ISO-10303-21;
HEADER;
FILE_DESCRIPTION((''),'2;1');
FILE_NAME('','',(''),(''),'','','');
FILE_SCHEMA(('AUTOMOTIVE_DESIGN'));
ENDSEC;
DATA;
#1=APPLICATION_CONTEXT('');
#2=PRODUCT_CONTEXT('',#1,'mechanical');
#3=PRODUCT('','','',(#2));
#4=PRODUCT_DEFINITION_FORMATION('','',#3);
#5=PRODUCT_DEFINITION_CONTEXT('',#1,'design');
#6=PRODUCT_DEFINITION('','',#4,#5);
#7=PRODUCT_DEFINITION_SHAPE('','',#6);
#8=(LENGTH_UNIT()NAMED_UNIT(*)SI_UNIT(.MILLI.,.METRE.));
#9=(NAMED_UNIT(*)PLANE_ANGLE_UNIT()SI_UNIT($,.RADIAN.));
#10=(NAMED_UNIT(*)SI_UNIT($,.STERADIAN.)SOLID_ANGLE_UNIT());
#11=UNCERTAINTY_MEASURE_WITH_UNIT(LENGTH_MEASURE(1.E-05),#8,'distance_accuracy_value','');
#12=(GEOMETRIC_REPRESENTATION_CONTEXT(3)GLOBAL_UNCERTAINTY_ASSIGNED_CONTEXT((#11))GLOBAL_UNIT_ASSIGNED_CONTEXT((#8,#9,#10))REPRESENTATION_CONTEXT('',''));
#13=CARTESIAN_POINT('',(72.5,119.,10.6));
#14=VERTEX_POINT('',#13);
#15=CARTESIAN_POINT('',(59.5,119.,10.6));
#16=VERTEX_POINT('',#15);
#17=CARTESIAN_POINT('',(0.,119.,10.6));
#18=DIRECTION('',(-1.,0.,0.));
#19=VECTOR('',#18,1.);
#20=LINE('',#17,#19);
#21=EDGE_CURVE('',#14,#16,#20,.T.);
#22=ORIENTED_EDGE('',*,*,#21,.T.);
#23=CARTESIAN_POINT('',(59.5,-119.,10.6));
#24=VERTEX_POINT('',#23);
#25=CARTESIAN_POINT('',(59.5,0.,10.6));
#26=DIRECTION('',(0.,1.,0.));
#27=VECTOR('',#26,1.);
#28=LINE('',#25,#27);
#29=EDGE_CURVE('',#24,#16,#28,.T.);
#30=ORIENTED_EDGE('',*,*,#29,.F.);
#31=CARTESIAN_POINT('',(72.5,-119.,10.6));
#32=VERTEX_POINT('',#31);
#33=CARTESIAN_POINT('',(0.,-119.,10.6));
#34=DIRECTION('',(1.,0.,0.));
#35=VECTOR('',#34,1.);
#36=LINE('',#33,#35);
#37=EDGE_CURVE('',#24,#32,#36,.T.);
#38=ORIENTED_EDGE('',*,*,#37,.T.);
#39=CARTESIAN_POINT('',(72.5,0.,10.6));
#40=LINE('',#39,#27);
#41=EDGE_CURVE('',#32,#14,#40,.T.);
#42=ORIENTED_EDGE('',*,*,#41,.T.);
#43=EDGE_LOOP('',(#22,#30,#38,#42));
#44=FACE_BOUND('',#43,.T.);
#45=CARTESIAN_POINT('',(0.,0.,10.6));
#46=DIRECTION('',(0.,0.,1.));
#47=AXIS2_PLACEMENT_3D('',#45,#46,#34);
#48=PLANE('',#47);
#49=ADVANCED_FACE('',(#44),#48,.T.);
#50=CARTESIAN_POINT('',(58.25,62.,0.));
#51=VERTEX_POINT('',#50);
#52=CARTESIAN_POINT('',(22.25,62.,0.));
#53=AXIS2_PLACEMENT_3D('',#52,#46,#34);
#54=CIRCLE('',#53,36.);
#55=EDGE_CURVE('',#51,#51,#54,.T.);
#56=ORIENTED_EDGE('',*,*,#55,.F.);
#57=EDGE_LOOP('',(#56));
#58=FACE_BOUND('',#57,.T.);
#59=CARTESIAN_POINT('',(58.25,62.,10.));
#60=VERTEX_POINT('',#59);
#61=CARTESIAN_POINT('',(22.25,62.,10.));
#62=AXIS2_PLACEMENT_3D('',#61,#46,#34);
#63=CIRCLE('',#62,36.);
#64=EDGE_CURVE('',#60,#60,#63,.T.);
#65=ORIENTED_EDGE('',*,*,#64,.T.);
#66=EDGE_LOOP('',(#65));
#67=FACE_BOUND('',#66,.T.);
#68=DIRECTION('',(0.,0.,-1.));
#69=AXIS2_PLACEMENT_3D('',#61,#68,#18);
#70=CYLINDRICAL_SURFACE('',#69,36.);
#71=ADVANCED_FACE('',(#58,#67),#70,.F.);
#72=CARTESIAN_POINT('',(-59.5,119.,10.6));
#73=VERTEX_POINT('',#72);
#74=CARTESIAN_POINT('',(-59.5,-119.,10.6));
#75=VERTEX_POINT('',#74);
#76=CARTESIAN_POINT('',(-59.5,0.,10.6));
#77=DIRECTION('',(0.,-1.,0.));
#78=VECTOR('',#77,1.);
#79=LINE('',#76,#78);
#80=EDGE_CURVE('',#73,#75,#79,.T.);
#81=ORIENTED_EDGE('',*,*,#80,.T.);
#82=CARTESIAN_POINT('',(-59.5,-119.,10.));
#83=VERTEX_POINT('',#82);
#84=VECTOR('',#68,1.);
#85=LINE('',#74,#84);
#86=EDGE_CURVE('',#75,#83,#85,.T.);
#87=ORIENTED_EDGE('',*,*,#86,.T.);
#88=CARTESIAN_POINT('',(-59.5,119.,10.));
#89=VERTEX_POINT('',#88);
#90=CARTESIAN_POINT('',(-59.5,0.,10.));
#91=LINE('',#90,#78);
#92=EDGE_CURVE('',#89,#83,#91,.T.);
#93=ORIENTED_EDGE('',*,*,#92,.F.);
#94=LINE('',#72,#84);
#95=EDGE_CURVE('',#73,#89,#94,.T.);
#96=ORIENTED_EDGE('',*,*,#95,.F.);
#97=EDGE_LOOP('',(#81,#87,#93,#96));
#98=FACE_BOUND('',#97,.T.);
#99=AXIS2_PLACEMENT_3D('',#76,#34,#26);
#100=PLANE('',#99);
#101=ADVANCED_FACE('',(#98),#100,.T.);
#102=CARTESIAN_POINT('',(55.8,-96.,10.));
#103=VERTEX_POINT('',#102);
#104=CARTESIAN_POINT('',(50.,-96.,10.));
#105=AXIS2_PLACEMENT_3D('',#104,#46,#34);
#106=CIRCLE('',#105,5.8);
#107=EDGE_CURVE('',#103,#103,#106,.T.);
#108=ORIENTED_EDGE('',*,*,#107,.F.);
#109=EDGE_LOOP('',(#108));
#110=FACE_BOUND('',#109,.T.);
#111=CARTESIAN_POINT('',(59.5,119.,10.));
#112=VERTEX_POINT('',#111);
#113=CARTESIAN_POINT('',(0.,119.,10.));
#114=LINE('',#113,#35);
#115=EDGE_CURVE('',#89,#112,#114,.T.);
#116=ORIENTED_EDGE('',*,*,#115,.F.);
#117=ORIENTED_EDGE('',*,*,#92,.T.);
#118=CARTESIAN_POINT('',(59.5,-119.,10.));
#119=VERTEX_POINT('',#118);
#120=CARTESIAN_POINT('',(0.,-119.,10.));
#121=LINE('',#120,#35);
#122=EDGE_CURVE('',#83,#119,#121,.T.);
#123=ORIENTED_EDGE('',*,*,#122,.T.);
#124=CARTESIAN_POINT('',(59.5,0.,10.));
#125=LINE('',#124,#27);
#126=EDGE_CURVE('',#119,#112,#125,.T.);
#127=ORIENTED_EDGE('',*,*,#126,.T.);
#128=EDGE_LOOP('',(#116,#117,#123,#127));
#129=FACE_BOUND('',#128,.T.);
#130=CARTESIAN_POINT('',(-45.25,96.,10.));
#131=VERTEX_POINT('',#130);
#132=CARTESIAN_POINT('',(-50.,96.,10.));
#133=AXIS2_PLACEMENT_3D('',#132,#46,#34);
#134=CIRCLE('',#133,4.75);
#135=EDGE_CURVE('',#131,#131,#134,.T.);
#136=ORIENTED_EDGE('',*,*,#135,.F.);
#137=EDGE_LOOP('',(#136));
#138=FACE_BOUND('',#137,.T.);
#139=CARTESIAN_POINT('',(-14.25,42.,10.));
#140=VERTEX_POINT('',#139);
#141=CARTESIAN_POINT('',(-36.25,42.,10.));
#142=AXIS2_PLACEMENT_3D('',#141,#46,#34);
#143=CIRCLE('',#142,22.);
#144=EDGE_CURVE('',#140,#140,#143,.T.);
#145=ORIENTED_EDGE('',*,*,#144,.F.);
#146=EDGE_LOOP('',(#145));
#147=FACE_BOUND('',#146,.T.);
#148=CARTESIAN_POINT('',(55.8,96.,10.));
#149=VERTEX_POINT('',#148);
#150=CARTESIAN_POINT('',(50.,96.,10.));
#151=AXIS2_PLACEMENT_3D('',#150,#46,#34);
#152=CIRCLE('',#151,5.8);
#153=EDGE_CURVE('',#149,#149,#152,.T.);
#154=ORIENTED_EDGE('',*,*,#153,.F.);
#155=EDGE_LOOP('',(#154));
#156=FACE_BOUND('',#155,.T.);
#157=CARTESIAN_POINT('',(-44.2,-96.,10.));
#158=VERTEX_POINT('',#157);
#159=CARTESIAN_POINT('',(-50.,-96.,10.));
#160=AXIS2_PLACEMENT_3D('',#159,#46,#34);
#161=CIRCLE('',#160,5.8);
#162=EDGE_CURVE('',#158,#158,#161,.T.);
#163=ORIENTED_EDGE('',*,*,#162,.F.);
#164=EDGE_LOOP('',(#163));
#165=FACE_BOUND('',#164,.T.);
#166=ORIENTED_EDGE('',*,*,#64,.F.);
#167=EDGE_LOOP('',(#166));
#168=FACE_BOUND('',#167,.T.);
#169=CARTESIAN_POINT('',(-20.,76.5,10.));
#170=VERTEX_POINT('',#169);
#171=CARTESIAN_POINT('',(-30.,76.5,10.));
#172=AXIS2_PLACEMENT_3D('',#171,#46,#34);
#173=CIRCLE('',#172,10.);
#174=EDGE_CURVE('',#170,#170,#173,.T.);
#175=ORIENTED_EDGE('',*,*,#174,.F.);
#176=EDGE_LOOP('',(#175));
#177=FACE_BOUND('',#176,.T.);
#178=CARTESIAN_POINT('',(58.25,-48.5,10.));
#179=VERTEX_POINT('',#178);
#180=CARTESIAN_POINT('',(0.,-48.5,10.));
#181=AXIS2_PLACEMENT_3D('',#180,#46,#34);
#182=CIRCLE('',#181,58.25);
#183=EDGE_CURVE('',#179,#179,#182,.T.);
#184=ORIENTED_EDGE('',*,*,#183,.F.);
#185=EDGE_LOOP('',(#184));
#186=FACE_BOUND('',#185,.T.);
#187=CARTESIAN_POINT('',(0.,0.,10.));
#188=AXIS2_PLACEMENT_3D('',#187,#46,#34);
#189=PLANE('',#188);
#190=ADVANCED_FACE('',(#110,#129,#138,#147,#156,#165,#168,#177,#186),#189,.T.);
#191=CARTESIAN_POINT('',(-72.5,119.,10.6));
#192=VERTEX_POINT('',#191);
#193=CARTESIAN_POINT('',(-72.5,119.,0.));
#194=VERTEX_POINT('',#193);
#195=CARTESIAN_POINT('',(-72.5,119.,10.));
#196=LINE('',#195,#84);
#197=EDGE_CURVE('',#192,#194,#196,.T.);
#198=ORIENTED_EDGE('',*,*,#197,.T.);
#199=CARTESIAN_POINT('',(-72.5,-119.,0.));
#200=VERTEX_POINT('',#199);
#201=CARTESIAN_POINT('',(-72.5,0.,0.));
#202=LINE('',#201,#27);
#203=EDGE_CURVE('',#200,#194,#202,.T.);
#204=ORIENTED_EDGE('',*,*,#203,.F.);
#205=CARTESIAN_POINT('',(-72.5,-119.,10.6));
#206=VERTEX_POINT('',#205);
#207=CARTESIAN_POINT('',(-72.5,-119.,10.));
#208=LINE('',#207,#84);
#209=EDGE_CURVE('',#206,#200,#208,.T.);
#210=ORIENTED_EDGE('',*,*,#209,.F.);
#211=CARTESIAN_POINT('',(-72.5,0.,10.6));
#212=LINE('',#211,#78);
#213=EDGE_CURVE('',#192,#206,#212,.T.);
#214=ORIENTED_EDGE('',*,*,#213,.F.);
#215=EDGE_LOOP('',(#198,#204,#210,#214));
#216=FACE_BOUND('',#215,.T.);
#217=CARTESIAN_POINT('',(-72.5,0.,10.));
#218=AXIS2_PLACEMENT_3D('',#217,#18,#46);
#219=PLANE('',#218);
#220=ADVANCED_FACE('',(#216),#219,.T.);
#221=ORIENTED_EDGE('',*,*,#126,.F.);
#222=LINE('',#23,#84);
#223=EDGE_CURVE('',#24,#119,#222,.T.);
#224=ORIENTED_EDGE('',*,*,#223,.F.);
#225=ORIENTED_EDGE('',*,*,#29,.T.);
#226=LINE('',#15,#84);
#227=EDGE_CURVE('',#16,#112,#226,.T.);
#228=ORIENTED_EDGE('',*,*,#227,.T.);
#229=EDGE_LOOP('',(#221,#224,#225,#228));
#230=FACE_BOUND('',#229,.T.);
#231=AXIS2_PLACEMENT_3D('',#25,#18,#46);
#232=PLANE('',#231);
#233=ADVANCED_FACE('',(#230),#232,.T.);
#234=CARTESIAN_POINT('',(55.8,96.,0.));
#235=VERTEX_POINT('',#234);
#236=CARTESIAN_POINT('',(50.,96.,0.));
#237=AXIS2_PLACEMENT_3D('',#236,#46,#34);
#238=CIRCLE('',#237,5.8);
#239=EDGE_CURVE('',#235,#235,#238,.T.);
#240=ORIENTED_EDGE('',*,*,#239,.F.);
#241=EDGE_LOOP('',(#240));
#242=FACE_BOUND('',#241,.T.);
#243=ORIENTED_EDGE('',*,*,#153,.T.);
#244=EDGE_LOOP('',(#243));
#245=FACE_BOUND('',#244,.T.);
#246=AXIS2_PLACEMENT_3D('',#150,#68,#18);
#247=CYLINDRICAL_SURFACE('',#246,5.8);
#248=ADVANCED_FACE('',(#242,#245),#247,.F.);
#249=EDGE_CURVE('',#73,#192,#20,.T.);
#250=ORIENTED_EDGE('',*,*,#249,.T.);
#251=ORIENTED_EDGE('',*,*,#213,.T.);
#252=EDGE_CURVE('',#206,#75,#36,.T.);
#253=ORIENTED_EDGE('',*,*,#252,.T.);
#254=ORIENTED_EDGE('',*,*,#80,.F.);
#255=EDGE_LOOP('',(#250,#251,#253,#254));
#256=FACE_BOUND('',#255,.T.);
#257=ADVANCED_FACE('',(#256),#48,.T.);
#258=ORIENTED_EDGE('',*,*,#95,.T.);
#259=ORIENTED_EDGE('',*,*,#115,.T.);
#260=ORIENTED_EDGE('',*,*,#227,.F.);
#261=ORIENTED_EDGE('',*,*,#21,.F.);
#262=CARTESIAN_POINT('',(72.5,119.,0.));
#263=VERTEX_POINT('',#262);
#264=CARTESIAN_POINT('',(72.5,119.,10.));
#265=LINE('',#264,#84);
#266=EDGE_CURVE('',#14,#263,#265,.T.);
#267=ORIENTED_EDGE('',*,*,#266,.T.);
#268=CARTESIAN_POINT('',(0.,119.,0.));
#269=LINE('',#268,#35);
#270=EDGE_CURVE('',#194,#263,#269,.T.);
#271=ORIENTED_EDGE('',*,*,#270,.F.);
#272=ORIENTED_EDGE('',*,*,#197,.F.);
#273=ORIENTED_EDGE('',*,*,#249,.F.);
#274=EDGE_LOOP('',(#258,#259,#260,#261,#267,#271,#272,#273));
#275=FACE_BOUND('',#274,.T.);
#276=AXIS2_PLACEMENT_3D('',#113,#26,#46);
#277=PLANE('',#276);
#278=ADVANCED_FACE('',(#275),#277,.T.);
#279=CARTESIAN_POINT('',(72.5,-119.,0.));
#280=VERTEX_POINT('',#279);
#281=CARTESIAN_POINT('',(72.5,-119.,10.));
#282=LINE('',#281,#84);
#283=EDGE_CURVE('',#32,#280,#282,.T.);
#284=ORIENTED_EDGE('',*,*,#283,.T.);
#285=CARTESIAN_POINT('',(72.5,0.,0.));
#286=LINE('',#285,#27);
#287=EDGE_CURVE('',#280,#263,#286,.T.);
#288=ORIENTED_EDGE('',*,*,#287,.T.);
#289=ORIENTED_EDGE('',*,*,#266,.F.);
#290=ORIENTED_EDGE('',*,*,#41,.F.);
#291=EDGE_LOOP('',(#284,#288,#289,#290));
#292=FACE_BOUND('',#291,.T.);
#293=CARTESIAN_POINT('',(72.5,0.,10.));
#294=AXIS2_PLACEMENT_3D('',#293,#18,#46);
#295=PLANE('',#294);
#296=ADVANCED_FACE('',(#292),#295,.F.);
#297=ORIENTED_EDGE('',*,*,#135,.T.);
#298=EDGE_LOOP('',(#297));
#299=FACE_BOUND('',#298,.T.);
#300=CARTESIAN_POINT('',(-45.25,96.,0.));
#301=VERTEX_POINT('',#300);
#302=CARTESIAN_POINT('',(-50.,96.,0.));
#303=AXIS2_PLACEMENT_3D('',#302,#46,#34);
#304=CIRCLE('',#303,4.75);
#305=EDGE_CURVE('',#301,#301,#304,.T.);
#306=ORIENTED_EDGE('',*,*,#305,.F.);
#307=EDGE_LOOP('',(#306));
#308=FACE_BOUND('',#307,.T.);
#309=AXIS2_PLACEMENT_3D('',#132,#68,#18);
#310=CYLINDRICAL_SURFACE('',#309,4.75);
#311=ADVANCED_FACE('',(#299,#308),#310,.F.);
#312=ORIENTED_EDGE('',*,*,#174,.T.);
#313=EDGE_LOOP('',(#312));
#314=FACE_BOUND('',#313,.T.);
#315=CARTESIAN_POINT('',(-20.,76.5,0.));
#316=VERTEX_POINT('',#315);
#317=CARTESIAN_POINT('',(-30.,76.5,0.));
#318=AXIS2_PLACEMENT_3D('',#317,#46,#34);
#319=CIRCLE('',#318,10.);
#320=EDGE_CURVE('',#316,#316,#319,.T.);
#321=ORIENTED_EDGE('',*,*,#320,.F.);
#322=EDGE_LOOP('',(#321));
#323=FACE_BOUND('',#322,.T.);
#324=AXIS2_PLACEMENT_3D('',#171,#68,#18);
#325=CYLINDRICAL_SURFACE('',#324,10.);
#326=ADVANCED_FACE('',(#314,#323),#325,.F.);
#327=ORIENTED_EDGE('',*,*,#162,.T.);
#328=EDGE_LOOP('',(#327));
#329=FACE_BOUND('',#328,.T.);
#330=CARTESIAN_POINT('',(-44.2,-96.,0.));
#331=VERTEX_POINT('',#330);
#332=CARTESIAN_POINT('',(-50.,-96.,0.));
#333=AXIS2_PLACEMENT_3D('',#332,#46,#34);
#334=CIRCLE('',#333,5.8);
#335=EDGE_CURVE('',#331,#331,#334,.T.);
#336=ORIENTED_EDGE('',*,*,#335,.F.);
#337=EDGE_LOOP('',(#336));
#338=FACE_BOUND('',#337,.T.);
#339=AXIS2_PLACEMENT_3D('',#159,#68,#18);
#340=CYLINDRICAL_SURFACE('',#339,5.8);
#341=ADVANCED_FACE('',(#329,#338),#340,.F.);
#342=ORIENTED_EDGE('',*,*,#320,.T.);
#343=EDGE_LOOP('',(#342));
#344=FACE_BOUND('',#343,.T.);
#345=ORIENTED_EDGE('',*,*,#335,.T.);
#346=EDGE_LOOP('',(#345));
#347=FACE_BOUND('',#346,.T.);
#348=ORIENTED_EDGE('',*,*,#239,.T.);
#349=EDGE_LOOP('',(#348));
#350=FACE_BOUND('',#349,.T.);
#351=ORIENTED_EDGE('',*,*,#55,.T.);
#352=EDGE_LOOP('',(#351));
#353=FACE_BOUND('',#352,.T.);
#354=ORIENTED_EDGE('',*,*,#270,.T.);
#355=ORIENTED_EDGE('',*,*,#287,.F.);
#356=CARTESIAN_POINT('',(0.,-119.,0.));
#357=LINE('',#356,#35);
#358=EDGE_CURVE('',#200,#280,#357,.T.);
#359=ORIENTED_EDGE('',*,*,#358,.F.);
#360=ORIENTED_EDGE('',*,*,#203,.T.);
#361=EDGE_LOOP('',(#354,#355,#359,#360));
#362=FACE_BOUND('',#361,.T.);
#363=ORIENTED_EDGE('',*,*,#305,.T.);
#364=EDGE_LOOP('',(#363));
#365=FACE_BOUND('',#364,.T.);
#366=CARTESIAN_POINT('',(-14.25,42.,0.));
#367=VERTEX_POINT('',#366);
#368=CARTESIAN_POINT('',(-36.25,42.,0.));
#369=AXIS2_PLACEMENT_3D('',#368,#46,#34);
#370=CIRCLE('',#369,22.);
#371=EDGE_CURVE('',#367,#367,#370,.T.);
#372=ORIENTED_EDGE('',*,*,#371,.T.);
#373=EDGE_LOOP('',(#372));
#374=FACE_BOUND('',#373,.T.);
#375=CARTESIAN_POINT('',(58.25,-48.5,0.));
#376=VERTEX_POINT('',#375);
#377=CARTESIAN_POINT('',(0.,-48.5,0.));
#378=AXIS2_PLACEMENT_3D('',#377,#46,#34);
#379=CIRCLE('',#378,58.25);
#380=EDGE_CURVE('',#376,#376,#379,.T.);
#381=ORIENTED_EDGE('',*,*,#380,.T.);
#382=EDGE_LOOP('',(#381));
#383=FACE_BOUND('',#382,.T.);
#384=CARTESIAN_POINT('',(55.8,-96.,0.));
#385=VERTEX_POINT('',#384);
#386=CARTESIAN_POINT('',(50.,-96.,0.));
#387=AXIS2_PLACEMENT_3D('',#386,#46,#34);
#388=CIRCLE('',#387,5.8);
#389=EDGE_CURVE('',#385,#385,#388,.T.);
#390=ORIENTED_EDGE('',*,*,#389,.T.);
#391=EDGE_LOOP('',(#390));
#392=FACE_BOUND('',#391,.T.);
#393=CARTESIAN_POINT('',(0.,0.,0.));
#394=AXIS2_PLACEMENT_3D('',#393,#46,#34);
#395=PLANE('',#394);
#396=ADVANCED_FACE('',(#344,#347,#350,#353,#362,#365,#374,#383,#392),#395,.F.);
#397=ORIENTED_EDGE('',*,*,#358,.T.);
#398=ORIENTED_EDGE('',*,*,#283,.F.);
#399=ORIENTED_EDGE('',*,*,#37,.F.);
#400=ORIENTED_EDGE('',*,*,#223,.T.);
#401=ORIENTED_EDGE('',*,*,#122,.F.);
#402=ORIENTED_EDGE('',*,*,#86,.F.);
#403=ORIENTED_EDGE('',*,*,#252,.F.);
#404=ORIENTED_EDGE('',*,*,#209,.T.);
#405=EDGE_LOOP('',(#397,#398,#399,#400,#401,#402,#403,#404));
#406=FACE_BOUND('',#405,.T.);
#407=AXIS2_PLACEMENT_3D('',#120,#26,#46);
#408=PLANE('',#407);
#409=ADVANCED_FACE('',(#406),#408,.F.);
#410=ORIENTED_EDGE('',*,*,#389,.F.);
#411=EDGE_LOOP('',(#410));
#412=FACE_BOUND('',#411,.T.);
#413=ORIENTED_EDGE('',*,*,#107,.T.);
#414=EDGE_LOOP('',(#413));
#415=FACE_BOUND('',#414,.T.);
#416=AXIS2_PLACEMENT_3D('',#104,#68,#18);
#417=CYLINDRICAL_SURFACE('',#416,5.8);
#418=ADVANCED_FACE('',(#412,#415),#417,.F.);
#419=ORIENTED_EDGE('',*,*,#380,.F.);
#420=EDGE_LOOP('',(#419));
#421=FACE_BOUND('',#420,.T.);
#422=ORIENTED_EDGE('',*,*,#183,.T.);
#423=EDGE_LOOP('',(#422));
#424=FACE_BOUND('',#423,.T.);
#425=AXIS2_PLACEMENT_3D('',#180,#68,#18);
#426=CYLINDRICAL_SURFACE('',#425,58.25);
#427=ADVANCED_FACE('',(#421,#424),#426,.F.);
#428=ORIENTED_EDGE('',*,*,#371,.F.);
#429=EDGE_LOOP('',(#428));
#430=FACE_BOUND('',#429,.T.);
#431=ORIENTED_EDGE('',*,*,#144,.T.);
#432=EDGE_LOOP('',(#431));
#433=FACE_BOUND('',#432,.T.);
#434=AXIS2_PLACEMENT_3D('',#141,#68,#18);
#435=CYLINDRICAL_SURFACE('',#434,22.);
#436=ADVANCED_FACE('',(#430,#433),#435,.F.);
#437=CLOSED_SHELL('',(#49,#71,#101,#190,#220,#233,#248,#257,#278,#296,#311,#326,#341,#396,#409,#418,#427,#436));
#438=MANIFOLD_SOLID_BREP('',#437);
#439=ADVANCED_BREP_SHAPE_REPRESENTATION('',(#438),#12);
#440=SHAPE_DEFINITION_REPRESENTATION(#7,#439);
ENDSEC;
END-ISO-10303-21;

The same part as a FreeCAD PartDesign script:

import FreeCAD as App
import Part
import Sketcher

doc = App.newDocument("Part")
body = doc.addObject("PartDesign::Body", "Body")

# Sketch on XY plane
sketch1 = doc.addObject("Sketcher::SketchObject", "Sketch")
body.addObject(sketch1)
sketch1.AttachmentSupport = (doc.XY_Plane, [""])
sketch1.MapMode = "FlatFace"
sketch1.addGeometry(Part.LineSegment(App.Vector(-72.5, 119, 0), App.Vector(-72.5, -119, 0)), False)
sketch1.addGeometry(Part.LineSegment(App.Vector(-72.5, -119, 0), App.Vector(72.5, -119, 0)), False)
sketch1.addGeometry(Part.LineSegment(App.Vector(72.5, -119, 0), App.Vector(72.5, 119, 0)), False)
sketch1.addGeometry(Part.LineSegment(App.Vector(72.5, 119, 0), App.Vector(-72.5, 119, 0)), False)
sketch1.addGeometry(Part.Circle(App.Vector(-50, -96, 0), App.Vector(0, 0, 1), 5.8), False)
sketch1.addGeometry(Part.Circle(App.Vector(50, -96, 0), App.Vector(0, 0, 1), 5.8), False)
sketch1.addGeometry(Part.Circle(App.Vector(0, -48.5, 0), App.Vector(0, 0, 1), 58.2), False)
sketch1.addGeometry(Part.Circle(App.Vector(-36.2, 42, 0), App.Vector(0, 0, 1), 22), False)
sketch1.addGeometry(Part.Circle(App.Vector(-50, 96, 0), App.Vector(0, 0, 1), 4.8), False)
sketch1.addGeometry(Part.Circle(App.Vector(-30, 76.5, 0), App.Vector(0, 0, 1), 10), False)
sketch1.addGeometry(Part.Circle(App.Vector(22.2, 62, 0), App.Vector(0, 0, 1), 36), False)
sketch1.addGeometry(Part.Circle(App.Vector(50, 96, 0), App.Vector(0, 0, 1), 5.8), False)
sketch1.addConstraint(Sketcher.Constraint("Coincident", 0, 2, 1, 1))
sketch1.addConstraint(Sketcher.Constraint("Coincident", 1, 2, 2, 1))
sketch1.addConstraint(Sketcher.Constraint("Coincident", 2, 2, 3, 1))
sketch1.addConstraint(Sketcher.Constraint("Coincident", 3, 2, 0, 1))
sketch1.addConstraint(Sketcher.Constraint("Vertical", 0))
sketch1.addConstraint(Sketcher.Constraint("Horizontal", 1))
sketch1.addConstraint(Sketcher.Constraint("Vertical", 2))
sketch1.addConstraint(Sketcher.Constraint("Horizontal", 3))
sketch1.addConstraint(Sketcher.Constraint("Equal", 4, 5))
sketch1.addConstraint(Sketcher.Constraint("Equal", 5, 11))
sketch1.addConstraint(Sketcher.Constraint("Symmetric", 5, 3, 8, 3, -1, 1))
sketch1.addConstraint(Sketcher.Constraint("Symmetric", 4, 3, 11, 3, -1, 1))
sketch1.addConstraint(Sketcher.Constraint("Symmetric", 0, 2, 2, 2, -1, 1))
sketch1.addConstraint(Sketcher.Constraint("Symmetric", 4, 3, 5, 3, -2))
sketch1.addConstraint(Sketcher.Constraint("PointOnObject", 6, 3, -2))
sketch1.addConstraint(Sketcher.Constraint("Diameter", 7, 44.0))
sketch1.addConstraint(Sketcher.Constraint("Diameter", 9, 20.0))
sketch1.addConstraint(Sketcher.Constraint("Diameter", 10, 72.0))
sketch1.addConstraint(Sketcher.Constraint("Diameter", 4, 11.6))
sketch1.addConstraint(Sketcher.Constraint("Diameter", 6, 116.5))
sketch1.addConstraint(Sketcher.Constraint("Diameter", 8, 9.5))
sketch1.addConstraint(Sketcher.Constraint("DistanceX", 1, 1, 1, 2, 145.0))
sketch1.addConstraint(Sketcher.Constraint("DistanceY", 0, 2, 0, 1, 238.0))
sketch1.addConstraint(Sketcher.Constraint("DistanceX", 4, 3, -1, 1, 50.0))
sketch1.addConstraint(Sketcher.Constraint("DistanceY", 4, 3, -1, 1, 96.0))
sketch1.addConstraint(Sketcher.Constraint("DistanceY", -1, 1, 7, 3, 42.0))
sketch1.addConstraint(Sketcher.Constraint("DistanceX", 9, 3, -1, 1, 30.0))
sketch1.addConstraint(Sketcher.Constraint("DistanceY", -1, 1, 10, 3, 62.0))
sketch1.addConstraint(Sketcher.Constraint("DistanceY", 6, 3, 9, 3, 125.0))
sketch1.addConstraint(Sketcher.Constraint("DistanceY", 6, 3, -1, 1, 48.5))
sketch1.addConstraint(Sketcher.Constraint("DistanceX", 7, 3, 10, 3, 58.5))
sketch1.addConstraint(Sketcher.Constraint("DistanceX", 7, 3, -1, 1, 36.25))
pad1 = doc.addObject("PartDesign::Pad", "Pad")
body.addObject(pad1)
pad1.Profile = sketch1
pad1.Length = 10

# Sketch on XY plane
sketch2 = doc.addObject("Sketcher::SketchObject", "Sketch001")
body.addObject(sketch2)
sketch2.AttachmentSupport = (doc.XY_Plane, [""])
sketch2.MapMode = "FlatFace"
sketch2.AttachmentOffset = App.Placement(App.Vector(0, 0, 10), App.Rotation())
sketch2.addGeometry(Part.LineSegment(App.Vector(-72, 119, 0), App.Vector(-72, -119, 0)), False)
sketch2.addGeometry(Part.LineSegment(App.Vector(-72, -119, 0), App.Vector(-60, -119, 0)), False)
sketch2.addGeometry(Part.LineSegment(App.Vector(-60, -119, 0), App.Vector(-60, 119, 0)), False)
sketch2.addGeometry(Part.LineSegment(App.Vector(-60, 119, 0), App.Vector(-72, 119, 0)), False)
sketch2.addGeometry(Part.LineSegment(App.Vector(60, 119, 0), App.Vector(60, -119, 0)), False)
sketch2.addGeometry(Part.LineSegment(App.Vector(60, -119, 0), App.Vector(72, -119, 0)), False)
sketch2.addGeometry(Part.LineSegment(App.Vector(72, -119, 0), App.Vector(72, 119, 0)), False)
sketch2.addGeometry(Part.LineSegment(App.Vector(72, 119, 0), App.Vector(60, 119, 0)), False)
sketch2.addConstraint(Sketcher.Constraint("Coincident", 0, 2, 1, 1))
sketch2.addConstraint(Sketcher.Constraint("Coincident", 1, 2, 2, 1))
sketch2.addConstraint(Sketcher.Constraint("Coincident", 2, 2, 3, 1))
sketch2.addConstraint(Sketcher.Constraint("Coincident", 3, 2, 0, 1))
sketch2.addConstraint(Sketcher.Constraint("Coincident", 4, 2, 5, 1))
sketch2.addConstraint(Sketcher.Constraint("Coincident", 5, 2, 6, 1))
sketch2.addConstraint(Sketcher.Constraint("Coincident", 6, 2, 7, 1))
sketch2.addConstraint(Sketcher.Constraint("Coincident", 7, 2, 4, 1))
sketch2.addConstraint(Sketcher.Constraint("Vertical", 0))
sketch2.addConstraint(Sketcher.Constraint("Horizontal", 1))
sketch2.addConstraint(Sketcher.Constraint("Vertical", 2))
sketch2.addConstraint(Sketcher.Constraint("Horizontal", 3))
sketch2.addConstraint(Sketcher.Constraint("Vertical", 4))
sketch2.addConstraint(Sketcher.Constraint("Horizontal", 5))
sketch2.addConstraint(Sketcher.Constraint("Vertical", 6))
sketch2.addConstraint(Sketcher.Constraint("Horizontal", 7))
sketch2.addConstraint(Sketcher.Constraint("Symmetric", 2, 2, 4, 2, -1, 1))
sketch2.addConstraint(Sketcher.Constraint("Symmetric", 0, 2, 6, 2, -1, 1))
sketch2.addConstraint(Sketcher.Constraint("Horizontal", 1, 2, 4, 2))
sketch2.addConstraint(Sketcher.Constraint("DistanceX", 1, 1, 1, 2, 13.0))
sketch2.addConstraint(Sketcher.Constraint("DistanceY", 0, 2, 0, 1, 238.0))
sketch2.addConstraint(Sketcher.Constraint("DistanceX", 1, 2, 4, 2, 119.0))
pad2 = doc.addObject("PartDesign::Pad", "Pad001")
body.addObject(pad2)
pad2.Profile = sketch2
pad2.Length = 0.6

doc.recompute()
